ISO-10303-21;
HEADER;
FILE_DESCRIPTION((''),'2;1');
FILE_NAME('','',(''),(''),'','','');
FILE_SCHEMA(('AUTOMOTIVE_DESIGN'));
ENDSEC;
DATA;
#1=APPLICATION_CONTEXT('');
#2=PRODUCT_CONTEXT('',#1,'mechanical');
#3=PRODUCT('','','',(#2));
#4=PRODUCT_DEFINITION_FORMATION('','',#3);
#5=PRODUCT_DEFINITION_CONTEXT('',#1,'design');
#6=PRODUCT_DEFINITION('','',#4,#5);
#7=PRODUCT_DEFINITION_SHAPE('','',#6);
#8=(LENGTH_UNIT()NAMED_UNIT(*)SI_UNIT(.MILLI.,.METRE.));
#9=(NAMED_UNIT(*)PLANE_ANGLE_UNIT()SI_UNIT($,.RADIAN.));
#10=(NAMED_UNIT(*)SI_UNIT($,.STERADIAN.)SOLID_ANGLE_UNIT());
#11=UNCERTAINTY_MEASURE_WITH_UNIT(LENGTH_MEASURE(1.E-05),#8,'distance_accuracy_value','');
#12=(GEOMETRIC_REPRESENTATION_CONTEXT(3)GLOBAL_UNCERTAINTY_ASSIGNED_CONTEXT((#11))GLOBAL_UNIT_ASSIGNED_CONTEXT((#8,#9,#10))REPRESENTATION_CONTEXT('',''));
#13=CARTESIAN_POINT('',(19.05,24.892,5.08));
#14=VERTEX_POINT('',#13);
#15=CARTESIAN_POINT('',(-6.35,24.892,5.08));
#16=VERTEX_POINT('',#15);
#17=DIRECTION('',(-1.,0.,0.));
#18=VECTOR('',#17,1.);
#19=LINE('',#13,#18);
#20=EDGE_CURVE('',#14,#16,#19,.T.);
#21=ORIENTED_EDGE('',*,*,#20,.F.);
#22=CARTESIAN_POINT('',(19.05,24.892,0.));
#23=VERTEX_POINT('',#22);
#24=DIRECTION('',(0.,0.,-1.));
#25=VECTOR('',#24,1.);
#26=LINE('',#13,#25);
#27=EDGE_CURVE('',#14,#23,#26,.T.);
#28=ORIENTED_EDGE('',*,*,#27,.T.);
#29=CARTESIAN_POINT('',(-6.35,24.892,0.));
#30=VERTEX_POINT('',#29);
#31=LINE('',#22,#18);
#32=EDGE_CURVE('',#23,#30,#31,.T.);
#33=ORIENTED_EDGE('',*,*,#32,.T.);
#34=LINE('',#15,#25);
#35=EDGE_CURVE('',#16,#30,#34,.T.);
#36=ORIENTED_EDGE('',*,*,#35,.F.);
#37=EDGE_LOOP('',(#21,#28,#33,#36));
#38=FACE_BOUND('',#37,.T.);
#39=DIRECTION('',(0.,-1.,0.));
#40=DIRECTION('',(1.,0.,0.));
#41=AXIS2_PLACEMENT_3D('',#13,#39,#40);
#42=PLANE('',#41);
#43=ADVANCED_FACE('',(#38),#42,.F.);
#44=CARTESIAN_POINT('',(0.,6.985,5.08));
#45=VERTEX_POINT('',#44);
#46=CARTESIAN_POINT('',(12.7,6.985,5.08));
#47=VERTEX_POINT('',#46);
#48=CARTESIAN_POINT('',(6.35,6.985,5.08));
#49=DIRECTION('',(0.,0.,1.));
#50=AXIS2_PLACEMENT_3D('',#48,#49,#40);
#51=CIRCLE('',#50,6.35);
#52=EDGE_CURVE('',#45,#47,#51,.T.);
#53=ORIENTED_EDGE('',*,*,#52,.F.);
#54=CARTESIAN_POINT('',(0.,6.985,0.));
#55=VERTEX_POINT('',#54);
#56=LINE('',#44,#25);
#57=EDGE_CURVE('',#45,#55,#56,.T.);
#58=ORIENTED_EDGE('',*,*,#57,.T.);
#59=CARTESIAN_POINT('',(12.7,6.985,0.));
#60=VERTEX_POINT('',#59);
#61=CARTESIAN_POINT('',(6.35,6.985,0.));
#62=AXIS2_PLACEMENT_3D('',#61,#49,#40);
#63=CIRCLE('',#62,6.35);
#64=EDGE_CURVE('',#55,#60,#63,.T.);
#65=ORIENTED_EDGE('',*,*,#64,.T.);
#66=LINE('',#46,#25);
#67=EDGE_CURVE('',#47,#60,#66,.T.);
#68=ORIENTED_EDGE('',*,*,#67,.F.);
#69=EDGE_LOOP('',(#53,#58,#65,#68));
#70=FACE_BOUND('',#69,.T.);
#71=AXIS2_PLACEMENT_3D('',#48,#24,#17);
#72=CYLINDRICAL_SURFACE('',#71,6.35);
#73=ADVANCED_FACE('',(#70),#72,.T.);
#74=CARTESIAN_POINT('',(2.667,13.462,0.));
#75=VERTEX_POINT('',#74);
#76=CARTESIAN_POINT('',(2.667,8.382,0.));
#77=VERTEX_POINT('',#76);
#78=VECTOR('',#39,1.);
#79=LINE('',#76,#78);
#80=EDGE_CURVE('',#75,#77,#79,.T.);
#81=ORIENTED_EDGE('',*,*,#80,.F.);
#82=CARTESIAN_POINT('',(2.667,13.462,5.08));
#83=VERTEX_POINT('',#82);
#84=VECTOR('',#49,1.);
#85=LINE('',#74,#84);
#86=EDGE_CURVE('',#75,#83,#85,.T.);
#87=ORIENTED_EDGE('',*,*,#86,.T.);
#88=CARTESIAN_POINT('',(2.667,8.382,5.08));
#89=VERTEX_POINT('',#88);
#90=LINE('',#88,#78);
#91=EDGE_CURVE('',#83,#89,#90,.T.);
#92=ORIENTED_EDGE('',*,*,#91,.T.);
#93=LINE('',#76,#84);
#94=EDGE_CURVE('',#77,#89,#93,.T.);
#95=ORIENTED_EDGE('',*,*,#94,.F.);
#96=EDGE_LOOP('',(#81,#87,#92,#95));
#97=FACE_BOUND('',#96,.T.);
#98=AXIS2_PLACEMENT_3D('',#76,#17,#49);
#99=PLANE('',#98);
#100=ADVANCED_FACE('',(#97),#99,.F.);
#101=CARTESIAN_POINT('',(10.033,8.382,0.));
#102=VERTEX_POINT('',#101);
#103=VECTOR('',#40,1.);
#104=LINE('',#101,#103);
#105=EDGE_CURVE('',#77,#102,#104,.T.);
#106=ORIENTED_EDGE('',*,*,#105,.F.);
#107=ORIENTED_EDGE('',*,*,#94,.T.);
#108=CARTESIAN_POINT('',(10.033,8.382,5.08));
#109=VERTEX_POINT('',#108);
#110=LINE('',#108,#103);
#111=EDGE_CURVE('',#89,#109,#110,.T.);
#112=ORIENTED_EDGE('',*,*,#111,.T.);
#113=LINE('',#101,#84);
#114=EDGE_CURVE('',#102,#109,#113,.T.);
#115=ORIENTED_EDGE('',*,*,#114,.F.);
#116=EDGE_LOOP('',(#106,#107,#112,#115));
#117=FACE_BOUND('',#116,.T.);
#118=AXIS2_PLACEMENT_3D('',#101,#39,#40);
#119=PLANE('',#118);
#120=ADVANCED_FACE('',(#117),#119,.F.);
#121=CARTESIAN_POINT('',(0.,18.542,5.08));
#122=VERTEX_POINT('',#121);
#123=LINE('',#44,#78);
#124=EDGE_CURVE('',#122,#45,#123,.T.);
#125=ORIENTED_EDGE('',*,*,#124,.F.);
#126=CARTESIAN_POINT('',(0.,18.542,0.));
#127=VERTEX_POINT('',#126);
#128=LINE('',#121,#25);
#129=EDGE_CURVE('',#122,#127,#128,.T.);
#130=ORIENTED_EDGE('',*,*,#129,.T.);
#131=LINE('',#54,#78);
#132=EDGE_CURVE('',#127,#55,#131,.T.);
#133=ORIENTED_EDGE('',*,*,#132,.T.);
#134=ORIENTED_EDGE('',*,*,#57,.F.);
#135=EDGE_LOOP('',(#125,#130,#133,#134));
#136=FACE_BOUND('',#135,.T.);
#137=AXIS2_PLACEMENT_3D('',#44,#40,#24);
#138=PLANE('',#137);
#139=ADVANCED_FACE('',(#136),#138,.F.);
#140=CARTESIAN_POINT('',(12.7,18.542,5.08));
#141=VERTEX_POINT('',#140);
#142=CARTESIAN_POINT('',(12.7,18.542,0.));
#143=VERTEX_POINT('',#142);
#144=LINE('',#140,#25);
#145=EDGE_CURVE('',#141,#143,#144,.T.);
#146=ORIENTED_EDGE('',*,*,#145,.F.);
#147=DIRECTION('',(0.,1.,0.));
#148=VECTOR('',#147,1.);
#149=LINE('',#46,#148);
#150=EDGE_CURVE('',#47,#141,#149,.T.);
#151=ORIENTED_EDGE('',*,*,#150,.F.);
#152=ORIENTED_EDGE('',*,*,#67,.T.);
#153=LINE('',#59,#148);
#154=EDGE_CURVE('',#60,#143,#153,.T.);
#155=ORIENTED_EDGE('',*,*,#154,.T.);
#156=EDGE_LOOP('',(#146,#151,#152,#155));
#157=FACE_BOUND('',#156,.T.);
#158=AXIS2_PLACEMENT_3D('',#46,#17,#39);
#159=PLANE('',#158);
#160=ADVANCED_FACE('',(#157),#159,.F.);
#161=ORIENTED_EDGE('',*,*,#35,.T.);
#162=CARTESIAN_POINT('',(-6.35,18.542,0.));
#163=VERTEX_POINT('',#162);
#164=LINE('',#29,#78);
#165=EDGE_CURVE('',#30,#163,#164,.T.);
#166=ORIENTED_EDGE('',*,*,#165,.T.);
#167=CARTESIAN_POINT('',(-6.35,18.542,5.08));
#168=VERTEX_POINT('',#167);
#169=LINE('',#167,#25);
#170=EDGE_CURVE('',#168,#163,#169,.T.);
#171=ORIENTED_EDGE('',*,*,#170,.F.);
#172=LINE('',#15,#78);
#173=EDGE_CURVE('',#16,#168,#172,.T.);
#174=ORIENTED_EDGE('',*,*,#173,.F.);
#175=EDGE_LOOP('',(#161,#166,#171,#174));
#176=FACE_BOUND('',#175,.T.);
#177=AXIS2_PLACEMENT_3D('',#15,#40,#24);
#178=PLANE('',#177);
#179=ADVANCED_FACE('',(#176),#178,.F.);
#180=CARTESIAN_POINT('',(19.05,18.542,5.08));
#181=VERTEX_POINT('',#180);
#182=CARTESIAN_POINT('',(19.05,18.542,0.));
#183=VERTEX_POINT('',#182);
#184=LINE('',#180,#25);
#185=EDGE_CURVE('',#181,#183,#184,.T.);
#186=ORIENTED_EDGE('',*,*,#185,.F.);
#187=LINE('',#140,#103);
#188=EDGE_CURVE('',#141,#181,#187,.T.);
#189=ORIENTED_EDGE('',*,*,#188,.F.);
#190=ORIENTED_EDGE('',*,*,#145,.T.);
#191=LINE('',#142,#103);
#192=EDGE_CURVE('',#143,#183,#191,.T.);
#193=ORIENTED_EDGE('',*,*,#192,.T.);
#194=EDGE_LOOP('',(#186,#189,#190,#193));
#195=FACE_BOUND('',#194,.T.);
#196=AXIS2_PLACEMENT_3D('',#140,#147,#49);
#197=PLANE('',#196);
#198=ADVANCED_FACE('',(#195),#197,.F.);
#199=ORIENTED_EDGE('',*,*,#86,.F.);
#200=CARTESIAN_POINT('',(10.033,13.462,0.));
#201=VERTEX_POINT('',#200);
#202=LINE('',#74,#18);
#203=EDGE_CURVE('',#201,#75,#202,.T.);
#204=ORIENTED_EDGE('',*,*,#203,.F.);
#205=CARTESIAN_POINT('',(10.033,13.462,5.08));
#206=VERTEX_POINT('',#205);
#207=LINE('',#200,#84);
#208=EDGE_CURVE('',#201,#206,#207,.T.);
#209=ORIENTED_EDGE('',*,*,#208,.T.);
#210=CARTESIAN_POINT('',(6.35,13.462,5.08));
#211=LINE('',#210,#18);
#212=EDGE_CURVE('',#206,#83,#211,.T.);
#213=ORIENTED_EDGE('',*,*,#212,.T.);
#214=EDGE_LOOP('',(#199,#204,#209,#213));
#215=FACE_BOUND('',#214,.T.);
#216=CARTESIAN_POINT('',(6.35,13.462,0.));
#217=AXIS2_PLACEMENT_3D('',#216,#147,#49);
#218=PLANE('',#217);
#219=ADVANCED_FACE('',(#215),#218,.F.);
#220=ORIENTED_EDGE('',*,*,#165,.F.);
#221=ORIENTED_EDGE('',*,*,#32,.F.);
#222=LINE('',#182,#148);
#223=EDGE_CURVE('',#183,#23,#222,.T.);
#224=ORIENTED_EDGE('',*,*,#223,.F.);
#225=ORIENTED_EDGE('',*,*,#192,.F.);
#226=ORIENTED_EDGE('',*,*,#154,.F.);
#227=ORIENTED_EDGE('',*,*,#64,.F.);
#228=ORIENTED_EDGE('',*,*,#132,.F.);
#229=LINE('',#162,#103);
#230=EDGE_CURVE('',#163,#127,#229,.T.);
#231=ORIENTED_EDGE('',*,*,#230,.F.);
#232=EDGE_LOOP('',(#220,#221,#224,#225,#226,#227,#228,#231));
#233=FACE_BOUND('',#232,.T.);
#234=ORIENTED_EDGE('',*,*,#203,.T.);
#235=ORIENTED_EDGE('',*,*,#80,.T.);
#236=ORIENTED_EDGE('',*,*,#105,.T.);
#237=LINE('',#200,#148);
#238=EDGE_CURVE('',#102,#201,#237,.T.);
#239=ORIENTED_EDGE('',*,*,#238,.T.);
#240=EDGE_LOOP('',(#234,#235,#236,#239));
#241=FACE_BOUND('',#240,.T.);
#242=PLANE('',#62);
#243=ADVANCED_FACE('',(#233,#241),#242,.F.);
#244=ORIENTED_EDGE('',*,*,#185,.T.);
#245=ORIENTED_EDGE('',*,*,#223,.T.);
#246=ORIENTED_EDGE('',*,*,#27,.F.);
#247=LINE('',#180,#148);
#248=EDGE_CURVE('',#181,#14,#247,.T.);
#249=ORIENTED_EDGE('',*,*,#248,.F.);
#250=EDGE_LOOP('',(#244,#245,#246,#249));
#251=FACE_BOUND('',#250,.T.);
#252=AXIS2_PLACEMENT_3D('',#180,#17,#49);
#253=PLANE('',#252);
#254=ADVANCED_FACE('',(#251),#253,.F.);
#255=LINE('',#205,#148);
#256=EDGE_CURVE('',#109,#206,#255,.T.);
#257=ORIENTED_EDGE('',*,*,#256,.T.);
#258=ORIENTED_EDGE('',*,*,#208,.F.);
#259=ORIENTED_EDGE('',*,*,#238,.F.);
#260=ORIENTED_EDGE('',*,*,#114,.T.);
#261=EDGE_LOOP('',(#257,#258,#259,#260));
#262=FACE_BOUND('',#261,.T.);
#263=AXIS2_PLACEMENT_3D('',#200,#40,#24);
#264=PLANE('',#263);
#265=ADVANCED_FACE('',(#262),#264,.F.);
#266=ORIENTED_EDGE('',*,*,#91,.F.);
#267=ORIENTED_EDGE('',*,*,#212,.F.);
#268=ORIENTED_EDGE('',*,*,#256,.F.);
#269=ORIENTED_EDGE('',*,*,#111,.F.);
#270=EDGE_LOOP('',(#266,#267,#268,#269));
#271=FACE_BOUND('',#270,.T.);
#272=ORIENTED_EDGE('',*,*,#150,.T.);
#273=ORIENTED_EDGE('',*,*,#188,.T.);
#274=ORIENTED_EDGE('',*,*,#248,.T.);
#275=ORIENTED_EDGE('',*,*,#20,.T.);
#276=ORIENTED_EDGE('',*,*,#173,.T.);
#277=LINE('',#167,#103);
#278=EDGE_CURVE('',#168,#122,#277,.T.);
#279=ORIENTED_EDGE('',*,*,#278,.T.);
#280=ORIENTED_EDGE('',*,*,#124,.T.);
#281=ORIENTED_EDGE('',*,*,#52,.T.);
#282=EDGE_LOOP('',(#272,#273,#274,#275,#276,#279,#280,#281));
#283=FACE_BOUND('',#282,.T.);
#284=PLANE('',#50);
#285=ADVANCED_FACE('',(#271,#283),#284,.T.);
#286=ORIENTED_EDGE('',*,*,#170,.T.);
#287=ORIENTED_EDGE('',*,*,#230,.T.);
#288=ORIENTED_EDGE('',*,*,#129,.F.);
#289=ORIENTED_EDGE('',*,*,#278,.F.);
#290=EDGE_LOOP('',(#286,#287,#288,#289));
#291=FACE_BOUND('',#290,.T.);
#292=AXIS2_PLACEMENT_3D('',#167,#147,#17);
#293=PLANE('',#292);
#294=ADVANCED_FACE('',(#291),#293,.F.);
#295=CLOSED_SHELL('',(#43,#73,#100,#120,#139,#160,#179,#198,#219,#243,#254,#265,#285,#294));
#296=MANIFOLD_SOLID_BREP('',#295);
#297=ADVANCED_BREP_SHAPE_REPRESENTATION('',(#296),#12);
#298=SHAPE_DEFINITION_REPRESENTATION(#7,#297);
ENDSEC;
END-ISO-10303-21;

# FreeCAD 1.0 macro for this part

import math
import FreeCAD as App
import Part
import Sketcher

V = App.Vector
Q = App.Units.Quantity


def add_polygon(sketch, points):
    """Adds a closed chain of lines whose ends are joined by coincident constraints."""
    first, n = sketch.GeometryCount, len(points)
    for a, b in zip(points, points[1:] + points[:1]):
        sketch.addGeometry(Part.LineSegment(App.Vector(*a, 0), App.Vector(*b, 0)), False)
    for i in range(n):
        sketch.addConstraint(Sketcher.Constraint("Coincident", first + i, 2, first + (i + 1) % n, 1))

doc = App.newDocument("Part")
body = doc.addObject("PartDesign::Body", "Body")

sketch1 = body.newObject("Sketcher::SketchObject", "Sketch")
sketch1.AttachmentSupport = (doc.getObject("XY_Plane"), [""])
sketch1.MapMode = "FlatFace"
sketch1.addGeometry([
    Part.LineSegment(V(13, 19, 0), V(19, 19, 0)),
    Part.LineSegment(V(19, 19, 0), V(19, 25, 0)),
    Part.LineSegment(V(19, 25, 0), V(-6, 25, 0)),
    Part.LineSegment(V(-6, 25, 0), V(-6, 19, 0)),
    Part.LineSegment(V(-6, 19, 0), V(0, 19, 0)),
    Part.LineSegment(V(0, 19, 0), V(0, 7, 0)),
    Part.ArcOfCircle(Part.Circle(V(6, 7, 0), V(0, 0, 1), 6), math.radians(180), math.radians(360)),
    Part.LineSegment(V(13, 7, 0), V(13, 19, 0)),
], False)
sketch1.addConstraint([
    Sketcher.Constraint("Coincident", 0, 2, 1, 1),
    Sketcher.Constraint("Coincident", 1, 2, 2, 1),
    Sketcher.Constraint("Coincident", 2, 2, 3, 1),
    Sketcher.Constraint("Coincident", 3, 2, 4, 1),
    Sketcher.Constraint("Coincident", 4, 2, 5, 1),
    Sketcher.Constraint("Tangent", 5, 2, 6, 1),
    Sketcher.Constraint("Tangent", 6, 2, 7, 1),
    Sketcher.Constraint("Coincident", 7, 2, 0, 1),
    Sketcher.Constraint("Horizontal", 0),
    Sketcher.Constraint("Vertical", 1),
    Sketcher.Constraint("Horizontal", 2),
    Sketcher.Constraint("Vertical", 3),
    Sketcher.Constraint("Horizontal", 4),
    Sketcher.Constraint("Vertical", 5),
    Sketcher.Constraint("Vertical", 7),
    Sketcher.Constraint("PointOnObject", 4, 2, -2),
    Sketcher.Constraint("Horizontal", 0, 2, 3, 2),
    Sketcher.Constraint("Equal", 0, 4),
    Sketcher.Constraint("Equal", 4, 1),
    Sketcher.Constraint("DistanceX", 2, 2, 2, 1, Q("1 in")),
    Sketcher.Constraint("Radius", 6, Q("0.25 in")),
    Sketcher.Constraint("DistanceY", 5, 2, 5, 1, Q("0.455 in")),
    Sketcher.Constraint("DistanceY", -1, 1, 0, 2, Q("0.73 in")),
])
pad1 = body.newObject("PartDesign::Pad", "Pad")
pad1.Profile = sketch1
pad1.Length = Q("0.2 in")

sketch2 = body.newObject("Sketcher::SketchObject", "Sketch001")
sketch2.AttachmentSupport = (doc.getObject("XY_Plane"), [""])
sketch2.MapMode = "FlatFace"
sketch2.AttachmentOffset = App.Placement(V(0, 0, 0.2 * 25.4), App.Rotation())
add_polygon(sketch2, [(10, 13), (3, 13), (3, 8), (10, 8)])
sketch2.addConstraint([
    Sketcher.Constraint("Horizontal", 0),
    Sketcher.Constraint("Vertical", 1),
    Sketcher.Constraint("Horizontal", 2),
    Sketcher.Constraint("Vertical", 3),
    Sketcher.Constraint("DistanceY", 1, 2, 1, 1, Q("0.2 in")),
    Sketcher.Constraint("DistanceX", 0, 2, 0, 1, Q("0.29 in")),
    Sketcher.Constraint("DistanceY", -1, 1, 0, 2, Q("0.53 in")),
    Sketcher.Constraint("DistanceX", -1, 1, 0, 2, Q("0.105 in")),
])
pocket1 = body.newObject("PartDesign::Pocket", "Pocket")
pocket1.Profile = sketch2
pocket1.Type = "ThroughAll"

doc.recompute()
